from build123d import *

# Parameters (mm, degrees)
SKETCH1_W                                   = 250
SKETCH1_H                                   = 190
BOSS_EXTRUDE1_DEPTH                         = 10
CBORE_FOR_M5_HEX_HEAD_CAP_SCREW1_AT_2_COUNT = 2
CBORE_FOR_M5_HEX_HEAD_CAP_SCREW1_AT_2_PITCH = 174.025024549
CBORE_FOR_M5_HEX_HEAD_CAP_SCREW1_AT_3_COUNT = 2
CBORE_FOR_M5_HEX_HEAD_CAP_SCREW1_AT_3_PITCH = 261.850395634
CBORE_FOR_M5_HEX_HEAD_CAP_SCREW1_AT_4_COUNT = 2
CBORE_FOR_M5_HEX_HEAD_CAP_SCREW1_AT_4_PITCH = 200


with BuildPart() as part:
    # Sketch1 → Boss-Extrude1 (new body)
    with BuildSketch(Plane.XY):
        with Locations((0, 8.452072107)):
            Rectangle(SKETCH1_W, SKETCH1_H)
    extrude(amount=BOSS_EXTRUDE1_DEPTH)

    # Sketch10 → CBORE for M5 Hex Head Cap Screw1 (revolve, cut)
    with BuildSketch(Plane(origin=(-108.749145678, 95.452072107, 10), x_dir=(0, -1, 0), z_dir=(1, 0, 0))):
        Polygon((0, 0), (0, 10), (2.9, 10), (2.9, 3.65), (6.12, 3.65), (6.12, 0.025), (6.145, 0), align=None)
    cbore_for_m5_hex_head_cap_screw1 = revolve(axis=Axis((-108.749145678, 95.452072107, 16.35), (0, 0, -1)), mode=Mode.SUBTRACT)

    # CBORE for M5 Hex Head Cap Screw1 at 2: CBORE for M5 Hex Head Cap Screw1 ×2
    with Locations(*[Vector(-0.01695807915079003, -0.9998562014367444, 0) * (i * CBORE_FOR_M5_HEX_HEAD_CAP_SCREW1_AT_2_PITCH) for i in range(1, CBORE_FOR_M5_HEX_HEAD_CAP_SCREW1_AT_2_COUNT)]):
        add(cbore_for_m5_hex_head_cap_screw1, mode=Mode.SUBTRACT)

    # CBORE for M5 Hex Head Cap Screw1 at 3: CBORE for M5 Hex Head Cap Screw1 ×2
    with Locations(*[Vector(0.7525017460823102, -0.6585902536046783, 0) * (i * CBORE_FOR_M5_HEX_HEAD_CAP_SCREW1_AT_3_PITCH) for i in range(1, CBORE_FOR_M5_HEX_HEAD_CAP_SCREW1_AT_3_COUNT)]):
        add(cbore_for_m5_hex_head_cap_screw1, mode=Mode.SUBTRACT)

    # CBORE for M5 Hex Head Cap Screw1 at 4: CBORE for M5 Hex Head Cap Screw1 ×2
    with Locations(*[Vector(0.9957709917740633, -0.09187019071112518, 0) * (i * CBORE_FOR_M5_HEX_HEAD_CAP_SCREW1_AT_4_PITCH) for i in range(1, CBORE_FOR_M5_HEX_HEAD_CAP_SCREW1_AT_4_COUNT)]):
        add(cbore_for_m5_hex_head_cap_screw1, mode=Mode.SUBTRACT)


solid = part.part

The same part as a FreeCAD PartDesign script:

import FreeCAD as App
import Part
import Sketcher
Q = App.Units.Quantity

doc = App.newDocument("Part")
body = doc.addObject("PartDesign::Body", "Body")

# Sketch on XY plane
sketch1 = body.newObject("Sketcher::SketchObject", "Sketch")
sketch1.AttachmentSupport = (doc.getObject("XY_Plane"), [""])
sketch1.MapMode = "FlatFace"
sketch1.addGeometry(Part.LineSegment(App.Vector(-125, 103.452072, 0), App.Vector(-125, -86.547928, 0)), False)
sketch1.addGeometry(Part.LineSegment(App.Vector(-125, -86.547928, 0), App.Vector(125, -86.547928, 0)), False)
sketch1.addGeometry(Part.LineSegment(App.Vector(125, -86.547928, 0), App.Vector(125, 103.452072, 0)), False)
sketch1.addGeometry(Part.LineSegment(App.Vector(125, 103.452072, 0), App.Vector(-125, 103.452072, 0)), False)
sketch1.addConstraint(Sketcher.Constraint("Coincident", 0, 2, 1, 1))
sketch1.addConstraint(Sketcher.Constraint("Coincident", 1, 2, 2, 1))
sketch1.addConstraint(Sketcher.Constraint("Coincident", 2, 2, 3, 1))
sketch1.addConstraint(Sketcher.Constraint("Coincident", 3, 2, 0, 1))
sketch1.addConstraint(Sketcher.Constraint("Vertical", 0))
sketch1.addConstraint(Sketcher.Constraint("Horizontal", 1))
sketch1.addConstraint(Sketcher.Constraint("Vertical", 2))
sketch1.addConstraint(Sketcher.Constraint("Horizontal", 3))
sketch1.addConstraint(Sketcher.Constraint("DistanceX", 1, 1, 1, 2, 250.0))
sketch1.addConstraint(Sketcher.Constraint("DistanceY", 0, 2, 0, 1, 190.0))
sketch1.addConstraint(Sketcher.Constraint("DistanceX", 0, 2, -1, 1, 125.0))
sketch1.addConstraint(Sketcher.Constraint("DistanceY", 0, 2, -1, 1, 86.547928))
pad1 = body.newObject("PartDesign::Pad", "Pad")
pad1.Profile = sketch1
pad1.Length = 10

# Sketch on YZ plane
sketch2 = body.newObject("Sketcher::SketchObject", "Sketch001")
sketch2.AttachmentSupport = (doc.getObject("YZ_Plane"), [""])
sketch2.MapMode = "FlatFace"
sketch2.AttachmentOffset = App.Placement(App.Vector(0, 0, -108.749146), App.Rotation())
sketch2.addGeometry(Part.LineSegment(App.Vector(95.452072, 0, 0), App.Vector(95.452072, 10, 0)), False)
sketch2.addGeometry(Part.LineSegment(App.Vector(95.452072, 10, 0), App.Vector(89.307072, 10, 0)), False)
sketch2.addGeometry(Part.LineSegment(App.Vector(89.307072, 10, 0), App.Vector(89.332072, 9.975, 0)), False)
sketch2.addGeometry(Part.LineSegment(App.Vector(89.332072, 9.975, 0), App.Vector(89.332072, 6.35, 0)), False)
sketch2.addGeometry(Part.LineSegment(App.Vector(89.332072, 6.35, 0), App.Vector(92.552072, 6.35, 0)), False)
sketch2.addGeometry(Part.LineSegment(App.Vector(92.552072, 6.35, 0), App.Vector(92.552072, 0, 0)), False)
sketch2.addGeometry(Part.LineSegment(App.Vector(92.552072, 0, 0), App.Vector(95.452072, 0, 0)), False)
sketch2.addGeometry(Part.LineSegment(App.Vector(95.452072, 10, 0), App.Vector(95.452072, 0, 0)), True)  # axis
sketch2.addConstraint(Sketcher.Constraint("Coincident", 0, 2, 1, 1))
sketch2.addConstraint(Sketcher.Constraint("Coincident", 1, 2, 2, 1))
sketch2.addConstraint(Sketcher.Constraint("Coincident", 2, 2, 3, 1))
sketch2.addConstraint(Sketcher.Constraint("Coincident", 3, 2, 4, 1))
sketch2.addConstraint(Sketcher.Constraint("Coincident", 4, 2, 5, 1))
sketch2.addConstraint(Sketcher.Constraint("Coincident", 5, 2, 6, 1))
sketch2.addConstraint(Sketcher.Constraint("Coincident", 6, 2, 0, 1))
sketch2.addConstraint(Sketcher.Constraint("Vertical", 0))
sketch2.addConstraint(Sketcher.Constraint("Horizontal", 1))
sketch2.addConstraint(Sketcher.Constraint("Vertical", 3))
sketch2.addConstraint(Sketcher.Constraint("Horizontal", 4))
sketch2.addConstraint(Sketcher.Constraint("Vertical", 5))
sketch2.addConstraint(Sketcher.Constraint("Horizontal", 6))
sketch2.addConstraint(Sketcher.Constraint("Vertical", 7))
sketch2.addConstraint(Sketcher.Constraint("Coincident", 7, 1, 0, 2))
sketch2.addConstraint(Sketcher.Constraint("PointOnObject", 5, 2, -1))
sketch2.addConstraint(Sketcher.Constraint("PointOnObject", 7, 2, -1))
sketch2.addConstraint(Sketcher.Constraint("DistanceY", 0, 1, 0, 2, 10.0))
sketch2.addConstraint(Sketcher.Constraint("Angle", 2, Q("-45 deg")))
sketch2.addConstraint(Sketcher.Constraint("DistanceX", 6, 1, 6, 2, 2.9))
sketch2.addConstraint(Sketcher.Constraint("DistanceX", 4, 1, 4, 2, 3.22))
sketch2.addConstraint(Sketcher.Constraint("DistanceY", 5, 2, 5, 1, 6.35))
sketch2.addConstraint(Sketcher.Constraint("DistanceX", 1, 2, 1, 1, 6.145))
sketch2.addConstraint(Sketcher.Constraint("DistanceX", -1, 1, 0, 2, 95.452072))
groove = body.newObject("PartDesign::Groove", "Groove")
groove.Profile = sketch2
groove.ReferenceAxis = (sketch2, ["Axis0"])
groove.Angle = 360
doc.recompute()

datumline = body.newObject("PartDesign::Line", "DatumLine")
datumline.Placement = App.Placement(App.Vector(0, 0, 0), App.Rotation(App.Vector(0, 0, 1), App.Vector(-0.016958079, -0.999856201, 0)))
linearpattern = body.newObject("PartDesign::LinearPattern", "LinearPattern")
linearpattern.Originals = [groove]
linearpattern.Direction = (datumline, [""])
linearpattern.Mode = "offset"
linearpattern.Offset = 174.025025
linearpattern.Occurrences = 2
body.Tip = linearpattern
doc.recompute()

datumline2 = body.newObject("PartDesign::Line", "DatumLine001")
datumline2.Placement = App.Placement(App.Vector(0, 0, 0), App.Rotation(App.Vector(0, 0, 1), App.Vector(0.752501746, -0.658590254, 0)))
linearpattern2 = body.newObject("PartDesign::LinearPattern", "LinearPattern001")
linearpattern2.Originals = [groove]
linearpattern2.Direction = (datumline2, [""])
linearpattern2.Mode = "offset"
linearpattern2.Offset = 261.850396
linearpattern2.Occurrences = 2
body.Tip = linearpattern2
doc.recompute()

datumline3 = body.newObject("PartDesign::Line", "DatumLine002")
datumline3.Placement = App.Placement(App.Vector(0, 0, 0), App.Rotation(App.Vector(0, 0, 1), App.Vector(0.995770992, -0.091870191, 0)))
linearpattern3 = body.newObject("PartDesign::LinearPattern", "LinearPattern002")
linearpattern3.Originals = [groove]
linearpattern3.Direction = (datumline3, [""])
linearpattern3.Mode = "offset"
linearpattern3.Offset = 200
linearpattern3.Occurrences = 2
body.Tip = linearpattern3

doc.recompute()
